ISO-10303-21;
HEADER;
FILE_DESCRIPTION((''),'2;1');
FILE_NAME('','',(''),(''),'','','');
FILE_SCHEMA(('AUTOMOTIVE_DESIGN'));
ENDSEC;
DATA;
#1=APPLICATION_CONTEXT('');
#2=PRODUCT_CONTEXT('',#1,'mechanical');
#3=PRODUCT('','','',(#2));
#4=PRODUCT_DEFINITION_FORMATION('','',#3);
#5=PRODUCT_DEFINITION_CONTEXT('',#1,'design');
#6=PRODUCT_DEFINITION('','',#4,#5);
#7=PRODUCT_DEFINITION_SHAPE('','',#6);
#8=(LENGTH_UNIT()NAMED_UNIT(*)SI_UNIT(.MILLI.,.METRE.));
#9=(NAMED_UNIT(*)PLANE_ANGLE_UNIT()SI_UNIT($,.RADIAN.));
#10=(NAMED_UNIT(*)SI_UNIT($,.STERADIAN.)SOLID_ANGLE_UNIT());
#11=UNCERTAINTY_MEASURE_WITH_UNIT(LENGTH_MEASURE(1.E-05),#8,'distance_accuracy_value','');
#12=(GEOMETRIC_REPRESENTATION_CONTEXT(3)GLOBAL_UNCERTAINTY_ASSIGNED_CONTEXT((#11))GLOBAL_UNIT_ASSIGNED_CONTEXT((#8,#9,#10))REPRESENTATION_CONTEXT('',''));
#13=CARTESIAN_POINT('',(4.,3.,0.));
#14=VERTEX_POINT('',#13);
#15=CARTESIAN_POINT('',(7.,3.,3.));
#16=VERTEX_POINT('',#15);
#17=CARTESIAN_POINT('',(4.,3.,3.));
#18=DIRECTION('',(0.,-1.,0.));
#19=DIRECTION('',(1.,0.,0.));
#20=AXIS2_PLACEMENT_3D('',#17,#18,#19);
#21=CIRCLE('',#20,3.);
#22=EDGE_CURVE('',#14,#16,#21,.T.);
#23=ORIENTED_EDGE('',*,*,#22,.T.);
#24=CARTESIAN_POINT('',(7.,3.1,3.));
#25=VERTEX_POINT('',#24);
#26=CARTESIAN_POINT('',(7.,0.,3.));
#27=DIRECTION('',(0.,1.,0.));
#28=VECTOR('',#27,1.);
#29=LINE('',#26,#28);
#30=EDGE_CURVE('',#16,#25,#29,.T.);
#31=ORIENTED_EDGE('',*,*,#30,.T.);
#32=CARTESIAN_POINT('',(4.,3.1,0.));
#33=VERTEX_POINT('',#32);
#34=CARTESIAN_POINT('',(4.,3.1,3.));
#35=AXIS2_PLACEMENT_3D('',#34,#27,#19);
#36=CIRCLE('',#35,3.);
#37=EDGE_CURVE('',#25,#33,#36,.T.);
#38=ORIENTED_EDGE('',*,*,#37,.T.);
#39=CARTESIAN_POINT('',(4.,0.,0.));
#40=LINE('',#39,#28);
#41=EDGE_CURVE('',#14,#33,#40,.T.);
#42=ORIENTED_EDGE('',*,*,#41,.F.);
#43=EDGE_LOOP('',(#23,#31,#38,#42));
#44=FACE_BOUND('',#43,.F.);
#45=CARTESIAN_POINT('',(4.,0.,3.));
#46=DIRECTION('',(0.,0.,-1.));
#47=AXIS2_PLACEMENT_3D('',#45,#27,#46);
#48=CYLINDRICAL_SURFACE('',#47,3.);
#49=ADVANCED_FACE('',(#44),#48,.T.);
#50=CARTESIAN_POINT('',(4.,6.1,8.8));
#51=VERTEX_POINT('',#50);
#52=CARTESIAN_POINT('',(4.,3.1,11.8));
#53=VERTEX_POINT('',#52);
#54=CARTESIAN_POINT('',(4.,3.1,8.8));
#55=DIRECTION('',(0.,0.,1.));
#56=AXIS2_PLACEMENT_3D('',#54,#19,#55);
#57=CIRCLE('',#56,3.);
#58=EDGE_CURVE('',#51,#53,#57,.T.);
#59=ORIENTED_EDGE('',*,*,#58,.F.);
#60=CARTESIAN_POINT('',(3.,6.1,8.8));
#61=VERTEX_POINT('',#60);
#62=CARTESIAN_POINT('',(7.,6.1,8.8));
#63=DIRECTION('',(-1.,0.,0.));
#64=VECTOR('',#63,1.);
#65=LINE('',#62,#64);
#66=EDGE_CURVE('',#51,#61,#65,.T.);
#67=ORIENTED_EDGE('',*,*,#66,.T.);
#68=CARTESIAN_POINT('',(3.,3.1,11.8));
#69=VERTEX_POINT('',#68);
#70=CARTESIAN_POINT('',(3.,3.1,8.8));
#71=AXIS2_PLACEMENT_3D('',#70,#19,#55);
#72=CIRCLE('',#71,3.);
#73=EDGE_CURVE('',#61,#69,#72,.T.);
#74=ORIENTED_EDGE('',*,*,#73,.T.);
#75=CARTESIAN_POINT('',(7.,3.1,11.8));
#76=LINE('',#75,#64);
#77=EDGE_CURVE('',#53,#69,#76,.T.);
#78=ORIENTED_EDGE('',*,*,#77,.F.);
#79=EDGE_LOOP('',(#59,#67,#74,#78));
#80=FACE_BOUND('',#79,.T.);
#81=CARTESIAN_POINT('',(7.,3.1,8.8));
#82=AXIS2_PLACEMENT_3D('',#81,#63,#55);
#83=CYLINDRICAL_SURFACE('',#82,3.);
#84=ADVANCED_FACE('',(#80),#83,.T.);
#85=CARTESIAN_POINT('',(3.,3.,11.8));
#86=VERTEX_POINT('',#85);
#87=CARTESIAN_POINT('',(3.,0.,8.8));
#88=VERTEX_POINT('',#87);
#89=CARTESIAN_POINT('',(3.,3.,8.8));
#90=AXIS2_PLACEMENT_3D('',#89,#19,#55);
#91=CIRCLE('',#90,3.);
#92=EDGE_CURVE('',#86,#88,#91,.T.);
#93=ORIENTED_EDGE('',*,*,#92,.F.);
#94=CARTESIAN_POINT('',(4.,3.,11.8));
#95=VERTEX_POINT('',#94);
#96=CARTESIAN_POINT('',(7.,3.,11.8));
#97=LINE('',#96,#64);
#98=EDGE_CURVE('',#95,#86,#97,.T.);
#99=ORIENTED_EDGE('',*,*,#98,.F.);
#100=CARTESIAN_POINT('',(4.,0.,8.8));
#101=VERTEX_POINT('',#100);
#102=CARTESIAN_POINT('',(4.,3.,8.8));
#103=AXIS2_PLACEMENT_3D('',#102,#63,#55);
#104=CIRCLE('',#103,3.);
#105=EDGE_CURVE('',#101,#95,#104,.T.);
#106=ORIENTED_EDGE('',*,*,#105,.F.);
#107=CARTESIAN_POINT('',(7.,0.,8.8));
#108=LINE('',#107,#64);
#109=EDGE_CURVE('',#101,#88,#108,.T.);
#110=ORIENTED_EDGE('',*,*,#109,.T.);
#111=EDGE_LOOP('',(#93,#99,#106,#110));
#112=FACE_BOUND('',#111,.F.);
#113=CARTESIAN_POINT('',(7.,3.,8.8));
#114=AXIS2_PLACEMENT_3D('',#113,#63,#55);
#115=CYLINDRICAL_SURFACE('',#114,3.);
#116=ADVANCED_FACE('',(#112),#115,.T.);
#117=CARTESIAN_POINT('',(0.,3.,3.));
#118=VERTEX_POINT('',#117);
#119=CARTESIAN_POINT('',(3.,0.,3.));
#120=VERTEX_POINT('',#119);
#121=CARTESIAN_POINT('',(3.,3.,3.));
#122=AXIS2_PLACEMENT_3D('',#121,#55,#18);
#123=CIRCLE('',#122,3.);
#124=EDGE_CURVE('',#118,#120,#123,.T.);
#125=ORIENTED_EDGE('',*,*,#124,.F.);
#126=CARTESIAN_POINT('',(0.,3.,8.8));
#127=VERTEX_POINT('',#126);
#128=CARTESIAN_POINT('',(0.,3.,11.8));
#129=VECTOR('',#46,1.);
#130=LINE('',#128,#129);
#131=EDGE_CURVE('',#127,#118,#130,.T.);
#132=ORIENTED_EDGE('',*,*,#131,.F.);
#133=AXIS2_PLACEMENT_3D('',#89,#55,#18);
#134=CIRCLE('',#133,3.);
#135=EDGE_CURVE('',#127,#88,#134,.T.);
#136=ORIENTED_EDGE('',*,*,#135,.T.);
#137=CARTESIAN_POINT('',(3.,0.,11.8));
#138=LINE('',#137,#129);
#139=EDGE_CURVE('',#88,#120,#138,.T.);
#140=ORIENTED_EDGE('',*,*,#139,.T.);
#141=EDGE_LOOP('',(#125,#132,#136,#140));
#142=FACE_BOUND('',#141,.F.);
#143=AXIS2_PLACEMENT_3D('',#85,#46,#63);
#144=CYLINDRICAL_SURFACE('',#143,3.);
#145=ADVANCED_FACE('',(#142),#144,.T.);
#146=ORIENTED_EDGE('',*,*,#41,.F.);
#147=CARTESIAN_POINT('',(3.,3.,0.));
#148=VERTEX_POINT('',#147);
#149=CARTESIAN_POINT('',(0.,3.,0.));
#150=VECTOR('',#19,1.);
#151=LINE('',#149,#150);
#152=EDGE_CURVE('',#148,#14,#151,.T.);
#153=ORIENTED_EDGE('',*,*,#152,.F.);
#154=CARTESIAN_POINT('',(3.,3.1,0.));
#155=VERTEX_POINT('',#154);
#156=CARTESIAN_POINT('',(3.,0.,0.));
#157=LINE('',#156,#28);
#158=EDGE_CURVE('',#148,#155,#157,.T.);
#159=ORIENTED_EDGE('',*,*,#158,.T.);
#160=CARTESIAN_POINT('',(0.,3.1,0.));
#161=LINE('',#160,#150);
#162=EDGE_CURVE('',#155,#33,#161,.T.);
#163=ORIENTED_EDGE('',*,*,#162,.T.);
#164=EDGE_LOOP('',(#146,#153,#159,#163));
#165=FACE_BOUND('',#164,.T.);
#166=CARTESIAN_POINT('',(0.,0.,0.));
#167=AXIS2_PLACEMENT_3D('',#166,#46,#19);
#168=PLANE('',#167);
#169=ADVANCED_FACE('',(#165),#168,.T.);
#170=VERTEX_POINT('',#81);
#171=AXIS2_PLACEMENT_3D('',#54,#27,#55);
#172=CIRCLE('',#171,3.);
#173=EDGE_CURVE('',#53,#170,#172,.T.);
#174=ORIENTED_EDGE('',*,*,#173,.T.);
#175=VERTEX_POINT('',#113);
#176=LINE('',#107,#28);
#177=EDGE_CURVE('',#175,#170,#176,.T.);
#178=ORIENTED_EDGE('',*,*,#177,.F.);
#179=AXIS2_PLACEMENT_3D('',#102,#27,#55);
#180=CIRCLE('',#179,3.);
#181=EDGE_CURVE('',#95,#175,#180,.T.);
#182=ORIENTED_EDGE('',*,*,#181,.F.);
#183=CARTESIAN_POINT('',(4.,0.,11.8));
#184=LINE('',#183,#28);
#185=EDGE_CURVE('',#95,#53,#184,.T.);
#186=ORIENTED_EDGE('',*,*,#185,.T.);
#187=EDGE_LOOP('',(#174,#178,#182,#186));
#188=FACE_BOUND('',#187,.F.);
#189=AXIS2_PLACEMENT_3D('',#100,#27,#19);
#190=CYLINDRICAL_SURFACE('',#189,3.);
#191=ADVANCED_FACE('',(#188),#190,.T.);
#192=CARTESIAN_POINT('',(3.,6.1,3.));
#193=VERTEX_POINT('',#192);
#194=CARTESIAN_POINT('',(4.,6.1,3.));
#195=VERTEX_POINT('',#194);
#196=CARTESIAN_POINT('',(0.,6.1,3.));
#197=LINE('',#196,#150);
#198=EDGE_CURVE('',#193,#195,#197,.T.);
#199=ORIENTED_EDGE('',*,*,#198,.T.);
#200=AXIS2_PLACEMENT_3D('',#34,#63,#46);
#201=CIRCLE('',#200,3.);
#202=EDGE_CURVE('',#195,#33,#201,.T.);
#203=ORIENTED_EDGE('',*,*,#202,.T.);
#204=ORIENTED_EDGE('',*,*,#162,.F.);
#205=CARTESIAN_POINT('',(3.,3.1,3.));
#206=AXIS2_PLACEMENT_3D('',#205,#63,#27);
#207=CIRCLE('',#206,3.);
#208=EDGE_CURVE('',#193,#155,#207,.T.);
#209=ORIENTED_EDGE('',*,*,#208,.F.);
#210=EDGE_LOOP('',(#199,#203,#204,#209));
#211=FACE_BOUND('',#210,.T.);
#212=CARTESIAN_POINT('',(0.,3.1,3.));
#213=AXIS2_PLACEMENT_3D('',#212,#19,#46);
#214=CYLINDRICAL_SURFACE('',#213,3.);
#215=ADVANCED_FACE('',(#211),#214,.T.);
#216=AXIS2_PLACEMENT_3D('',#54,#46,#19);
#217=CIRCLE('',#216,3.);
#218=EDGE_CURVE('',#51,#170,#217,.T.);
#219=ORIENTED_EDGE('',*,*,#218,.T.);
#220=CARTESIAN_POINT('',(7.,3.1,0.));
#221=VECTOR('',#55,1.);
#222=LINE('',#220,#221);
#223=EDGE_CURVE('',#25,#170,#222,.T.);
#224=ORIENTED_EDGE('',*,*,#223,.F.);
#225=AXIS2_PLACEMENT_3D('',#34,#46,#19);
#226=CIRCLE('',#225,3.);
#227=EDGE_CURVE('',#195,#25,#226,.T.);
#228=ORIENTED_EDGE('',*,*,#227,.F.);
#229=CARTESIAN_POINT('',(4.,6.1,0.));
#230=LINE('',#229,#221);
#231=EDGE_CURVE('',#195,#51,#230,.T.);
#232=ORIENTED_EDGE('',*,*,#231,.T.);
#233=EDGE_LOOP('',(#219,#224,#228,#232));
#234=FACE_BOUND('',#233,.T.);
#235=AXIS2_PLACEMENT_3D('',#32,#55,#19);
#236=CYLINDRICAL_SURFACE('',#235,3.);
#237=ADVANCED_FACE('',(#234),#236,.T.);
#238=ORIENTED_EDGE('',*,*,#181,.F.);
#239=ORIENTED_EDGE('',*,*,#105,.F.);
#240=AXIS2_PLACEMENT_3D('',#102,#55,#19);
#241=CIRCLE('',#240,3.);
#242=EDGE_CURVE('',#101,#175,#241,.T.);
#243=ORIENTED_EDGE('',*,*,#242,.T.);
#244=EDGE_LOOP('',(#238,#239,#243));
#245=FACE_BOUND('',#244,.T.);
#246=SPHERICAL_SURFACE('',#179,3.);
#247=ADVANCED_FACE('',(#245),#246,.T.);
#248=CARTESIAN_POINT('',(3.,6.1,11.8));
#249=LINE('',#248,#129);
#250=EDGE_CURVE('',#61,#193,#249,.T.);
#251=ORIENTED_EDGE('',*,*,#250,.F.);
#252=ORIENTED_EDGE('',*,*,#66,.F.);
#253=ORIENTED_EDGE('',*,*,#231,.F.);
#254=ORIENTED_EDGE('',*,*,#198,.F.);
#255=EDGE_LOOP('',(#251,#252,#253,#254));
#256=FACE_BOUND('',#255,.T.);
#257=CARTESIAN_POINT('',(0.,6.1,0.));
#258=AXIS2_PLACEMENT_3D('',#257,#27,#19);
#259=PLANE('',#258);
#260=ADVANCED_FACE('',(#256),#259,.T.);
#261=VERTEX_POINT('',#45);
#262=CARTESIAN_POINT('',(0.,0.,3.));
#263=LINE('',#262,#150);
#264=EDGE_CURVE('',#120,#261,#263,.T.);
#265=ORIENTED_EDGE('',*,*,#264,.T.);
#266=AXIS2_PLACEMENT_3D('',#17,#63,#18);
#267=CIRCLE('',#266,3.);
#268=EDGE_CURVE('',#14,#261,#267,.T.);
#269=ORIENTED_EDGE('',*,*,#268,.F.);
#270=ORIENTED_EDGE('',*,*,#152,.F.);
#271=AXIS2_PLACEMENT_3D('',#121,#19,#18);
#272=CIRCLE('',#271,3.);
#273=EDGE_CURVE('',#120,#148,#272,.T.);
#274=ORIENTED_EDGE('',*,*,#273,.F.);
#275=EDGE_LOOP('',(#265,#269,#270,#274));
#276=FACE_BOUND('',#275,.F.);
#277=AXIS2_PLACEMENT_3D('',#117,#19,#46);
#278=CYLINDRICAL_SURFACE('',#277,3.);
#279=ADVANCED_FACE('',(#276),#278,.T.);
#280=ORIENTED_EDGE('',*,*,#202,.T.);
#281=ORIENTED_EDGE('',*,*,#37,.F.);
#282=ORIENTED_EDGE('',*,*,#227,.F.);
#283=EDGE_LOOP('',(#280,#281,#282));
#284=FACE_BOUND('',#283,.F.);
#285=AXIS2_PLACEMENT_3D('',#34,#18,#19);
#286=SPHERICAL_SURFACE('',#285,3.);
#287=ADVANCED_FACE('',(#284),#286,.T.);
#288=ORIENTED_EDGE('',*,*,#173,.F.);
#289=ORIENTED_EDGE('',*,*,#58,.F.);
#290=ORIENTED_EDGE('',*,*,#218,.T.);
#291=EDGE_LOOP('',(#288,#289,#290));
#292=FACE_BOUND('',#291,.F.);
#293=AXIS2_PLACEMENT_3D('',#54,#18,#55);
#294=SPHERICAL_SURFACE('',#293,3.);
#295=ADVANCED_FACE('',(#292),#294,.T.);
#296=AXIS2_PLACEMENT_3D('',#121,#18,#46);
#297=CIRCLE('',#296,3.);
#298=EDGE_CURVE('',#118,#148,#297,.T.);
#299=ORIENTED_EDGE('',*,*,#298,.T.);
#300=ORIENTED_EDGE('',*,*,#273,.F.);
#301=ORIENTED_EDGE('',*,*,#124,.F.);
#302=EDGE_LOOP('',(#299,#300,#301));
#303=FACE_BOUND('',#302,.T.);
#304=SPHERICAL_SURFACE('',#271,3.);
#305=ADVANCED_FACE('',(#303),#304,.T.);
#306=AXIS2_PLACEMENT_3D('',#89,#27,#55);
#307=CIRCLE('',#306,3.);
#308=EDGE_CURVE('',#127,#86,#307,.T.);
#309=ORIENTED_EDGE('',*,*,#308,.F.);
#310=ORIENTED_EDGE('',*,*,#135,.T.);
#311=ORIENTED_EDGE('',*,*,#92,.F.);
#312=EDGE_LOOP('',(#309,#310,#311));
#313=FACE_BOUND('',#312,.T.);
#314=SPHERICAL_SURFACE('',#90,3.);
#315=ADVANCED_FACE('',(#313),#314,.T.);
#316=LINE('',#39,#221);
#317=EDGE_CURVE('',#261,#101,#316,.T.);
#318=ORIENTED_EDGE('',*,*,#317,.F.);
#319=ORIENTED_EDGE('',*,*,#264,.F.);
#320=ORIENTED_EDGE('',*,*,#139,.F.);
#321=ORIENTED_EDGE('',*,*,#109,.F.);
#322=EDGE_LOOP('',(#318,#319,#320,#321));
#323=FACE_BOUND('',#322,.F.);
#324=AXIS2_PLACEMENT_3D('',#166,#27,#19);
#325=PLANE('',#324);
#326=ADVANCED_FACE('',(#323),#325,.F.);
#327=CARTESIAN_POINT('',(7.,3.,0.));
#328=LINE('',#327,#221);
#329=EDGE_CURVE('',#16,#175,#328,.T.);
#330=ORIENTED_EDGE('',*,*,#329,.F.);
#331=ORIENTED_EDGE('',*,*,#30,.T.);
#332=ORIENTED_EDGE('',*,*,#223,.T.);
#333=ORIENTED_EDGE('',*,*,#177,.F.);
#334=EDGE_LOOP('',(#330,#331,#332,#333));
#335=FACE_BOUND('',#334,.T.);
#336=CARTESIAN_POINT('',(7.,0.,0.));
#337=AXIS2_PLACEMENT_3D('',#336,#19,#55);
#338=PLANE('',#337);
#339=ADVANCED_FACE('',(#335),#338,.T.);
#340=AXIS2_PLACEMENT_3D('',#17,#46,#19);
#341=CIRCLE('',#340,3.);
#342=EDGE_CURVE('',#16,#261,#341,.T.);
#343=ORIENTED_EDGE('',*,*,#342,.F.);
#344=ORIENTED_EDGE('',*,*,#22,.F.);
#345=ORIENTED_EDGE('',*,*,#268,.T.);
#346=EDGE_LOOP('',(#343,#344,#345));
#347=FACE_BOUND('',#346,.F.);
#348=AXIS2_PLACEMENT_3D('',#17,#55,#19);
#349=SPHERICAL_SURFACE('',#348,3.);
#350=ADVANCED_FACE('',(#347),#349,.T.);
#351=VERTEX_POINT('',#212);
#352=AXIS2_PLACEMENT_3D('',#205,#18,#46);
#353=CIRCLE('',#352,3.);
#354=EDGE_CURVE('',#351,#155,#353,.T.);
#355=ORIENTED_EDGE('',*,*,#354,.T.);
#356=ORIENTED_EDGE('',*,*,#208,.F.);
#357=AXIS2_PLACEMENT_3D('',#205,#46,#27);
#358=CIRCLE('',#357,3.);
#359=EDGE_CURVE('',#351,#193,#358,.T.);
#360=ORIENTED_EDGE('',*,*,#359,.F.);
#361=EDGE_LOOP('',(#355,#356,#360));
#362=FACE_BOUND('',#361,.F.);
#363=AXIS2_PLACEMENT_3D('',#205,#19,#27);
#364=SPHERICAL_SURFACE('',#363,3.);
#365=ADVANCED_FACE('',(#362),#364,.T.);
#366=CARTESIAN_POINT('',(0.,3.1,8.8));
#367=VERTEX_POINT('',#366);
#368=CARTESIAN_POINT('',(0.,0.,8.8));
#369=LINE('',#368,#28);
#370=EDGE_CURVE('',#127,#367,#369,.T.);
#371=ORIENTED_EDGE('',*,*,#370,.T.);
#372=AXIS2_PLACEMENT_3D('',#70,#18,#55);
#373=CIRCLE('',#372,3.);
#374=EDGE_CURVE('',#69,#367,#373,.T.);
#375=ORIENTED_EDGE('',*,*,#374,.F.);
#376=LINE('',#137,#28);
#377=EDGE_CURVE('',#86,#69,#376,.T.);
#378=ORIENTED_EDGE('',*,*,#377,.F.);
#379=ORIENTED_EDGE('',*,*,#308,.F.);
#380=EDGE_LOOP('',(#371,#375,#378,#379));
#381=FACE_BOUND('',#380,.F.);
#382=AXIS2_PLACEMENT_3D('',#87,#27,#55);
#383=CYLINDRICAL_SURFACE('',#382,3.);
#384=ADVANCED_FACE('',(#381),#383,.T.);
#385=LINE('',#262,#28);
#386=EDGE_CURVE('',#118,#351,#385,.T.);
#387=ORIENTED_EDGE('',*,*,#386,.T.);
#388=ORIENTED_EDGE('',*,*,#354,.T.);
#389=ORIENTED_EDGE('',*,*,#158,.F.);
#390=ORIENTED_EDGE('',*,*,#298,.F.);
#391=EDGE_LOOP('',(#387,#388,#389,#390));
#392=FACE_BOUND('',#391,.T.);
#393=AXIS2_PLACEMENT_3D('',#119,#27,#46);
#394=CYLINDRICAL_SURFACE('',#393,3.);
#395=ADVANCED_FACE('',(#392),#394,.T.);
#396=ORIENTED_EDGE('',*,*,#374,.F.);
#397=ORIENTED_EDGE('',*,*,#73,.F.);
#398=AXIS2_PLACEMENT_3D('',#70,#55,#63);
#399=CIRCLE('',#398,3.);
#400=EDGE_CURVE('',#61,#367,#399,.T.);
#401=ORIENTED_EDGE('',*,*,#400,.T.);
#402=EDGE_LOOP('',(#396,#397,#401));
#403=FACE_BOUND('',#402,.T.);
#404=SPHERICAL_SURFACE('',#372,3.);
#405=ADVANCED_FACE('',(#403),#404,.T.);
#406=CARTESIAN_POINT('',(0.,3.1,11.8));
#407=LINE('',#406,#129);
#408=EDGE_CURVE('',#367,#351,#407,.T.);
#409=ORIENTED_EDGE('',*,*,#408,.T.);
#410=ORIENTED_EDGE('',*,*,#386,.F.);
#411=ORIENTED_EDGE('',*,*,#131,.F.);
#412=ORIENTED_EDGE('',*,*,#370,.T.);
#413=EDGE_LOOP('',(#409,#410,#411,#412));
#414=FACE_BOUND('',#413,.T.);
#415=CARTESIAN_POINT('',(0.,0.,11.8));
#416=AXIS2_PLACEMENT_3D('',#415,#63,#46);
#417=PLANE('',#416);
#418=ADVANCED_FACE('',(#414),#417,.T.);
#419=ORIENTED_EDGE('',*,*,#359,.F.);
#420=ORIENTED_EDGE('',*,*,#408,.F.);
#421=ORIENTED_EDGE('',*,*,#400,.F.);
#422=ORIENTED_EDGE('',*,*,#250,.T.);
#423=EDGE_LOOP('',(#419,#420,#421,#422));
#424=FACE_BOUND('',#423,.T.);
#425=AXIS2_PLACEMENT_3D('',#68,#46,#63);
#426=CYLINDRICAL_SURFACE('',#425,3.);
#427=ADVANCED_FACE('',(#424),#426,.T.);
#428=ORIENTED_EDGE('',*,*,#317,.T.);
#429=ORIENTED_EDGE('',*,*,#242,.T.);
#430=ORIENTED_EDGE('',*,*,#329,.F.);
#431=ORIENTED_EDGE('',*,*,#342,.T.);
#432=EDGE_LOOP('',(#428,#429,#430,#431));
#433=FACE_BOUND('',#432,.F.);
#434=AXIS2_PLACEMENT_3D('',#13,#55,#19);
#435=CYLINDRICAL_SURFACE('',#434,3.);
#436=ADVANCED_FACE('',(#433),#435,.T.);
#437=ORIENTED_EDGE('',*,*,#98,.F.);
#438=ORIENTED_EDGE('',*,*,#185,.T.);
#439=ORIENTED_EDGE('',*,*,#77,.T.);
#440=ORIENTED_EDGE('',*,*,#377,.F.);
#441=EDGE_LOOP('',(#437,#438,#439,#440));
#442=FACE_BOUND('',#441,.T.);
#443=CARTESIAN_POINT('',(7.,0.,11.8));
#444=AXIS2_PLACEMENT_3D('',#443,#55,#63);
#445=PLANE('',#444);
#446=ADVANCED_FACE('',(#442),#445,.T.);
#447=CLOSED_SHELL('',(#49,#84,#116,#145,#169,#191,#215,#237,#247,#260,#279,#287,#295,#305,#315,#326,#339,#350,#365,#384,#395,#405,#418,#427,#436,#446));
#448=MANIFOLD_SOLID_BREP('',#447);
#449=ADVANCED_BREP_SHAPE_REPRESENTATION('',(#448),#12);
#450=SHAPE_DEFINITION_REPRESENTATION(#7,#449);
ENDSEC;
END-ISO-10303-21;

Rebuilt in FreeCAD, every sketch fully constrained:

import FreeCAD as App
import Part
import Sketcher

V = App.Vector
Q = App.Units.Quantity


def add_polygon(sketch, points):
    """Adds a closed chain of lines whose ends are joined by coincident constraints."""
    first, n = sketch.GeometryCount, len(points)
    for a, b in zip(points, points[1:] + points[:1]):
        sketch.addGeometry(Part.LineSegment(App.Vector(*a, 0), App.Vector(*b, 0)), False)
    for i in range(n):
        sketch.addConstraint(Sketcher.Constraint("Coincident", first + i, 2, first + (i + 1) % n, 1))

doc = App.newDocument("Part")
body = doc.addObject("PartDesign::Body", "Body")

# Sketch on XZ plane
sketch1 = body.newObject("Sketcher::SketchObject", "Sketch")
sketch1.AttachmentSupport = (doc.getObject("XZ_Plane"), [""])
sketch1.MapMode = "FlatFace"
add_polygon(sketch1, [(7, 0), (0, 0), (0, 12), (7, 12)])  # lines 0-3
sketch1.addConstraint([
    Sketcher.Constraint("Horizontal", 0),
    Sketcher.Constraint("Vertical", 1),
    Sketcher.Constraint("Horizontal", 2),
    Sketcher.Constraint("Vertical", 3),
    Sketcher.Constraint("Coincident", 0, 2, -1, 1),
    Sketcher.Constraint("DistanceX", 0, 2, 0, 1, Q("7 mm")),
    Sketcher.Constraint("DistanceY", 1, 1, 1, 2, Q("11.8 mm")),
])
pad1 = body.newObject("PartDesign::Pad", "Pad")
pad1.Profile = sketch1
pad1.Length = 6.1
pad1.Reversed = True
doc.recompute()

fillet = body.newObject("PartDesign::Fillet", "Fillet")
fillet.Base = (pad1, ["Edge1"])
fillet.UseAllEdges = True
fillet.Radius = 3

doc.recompute()
